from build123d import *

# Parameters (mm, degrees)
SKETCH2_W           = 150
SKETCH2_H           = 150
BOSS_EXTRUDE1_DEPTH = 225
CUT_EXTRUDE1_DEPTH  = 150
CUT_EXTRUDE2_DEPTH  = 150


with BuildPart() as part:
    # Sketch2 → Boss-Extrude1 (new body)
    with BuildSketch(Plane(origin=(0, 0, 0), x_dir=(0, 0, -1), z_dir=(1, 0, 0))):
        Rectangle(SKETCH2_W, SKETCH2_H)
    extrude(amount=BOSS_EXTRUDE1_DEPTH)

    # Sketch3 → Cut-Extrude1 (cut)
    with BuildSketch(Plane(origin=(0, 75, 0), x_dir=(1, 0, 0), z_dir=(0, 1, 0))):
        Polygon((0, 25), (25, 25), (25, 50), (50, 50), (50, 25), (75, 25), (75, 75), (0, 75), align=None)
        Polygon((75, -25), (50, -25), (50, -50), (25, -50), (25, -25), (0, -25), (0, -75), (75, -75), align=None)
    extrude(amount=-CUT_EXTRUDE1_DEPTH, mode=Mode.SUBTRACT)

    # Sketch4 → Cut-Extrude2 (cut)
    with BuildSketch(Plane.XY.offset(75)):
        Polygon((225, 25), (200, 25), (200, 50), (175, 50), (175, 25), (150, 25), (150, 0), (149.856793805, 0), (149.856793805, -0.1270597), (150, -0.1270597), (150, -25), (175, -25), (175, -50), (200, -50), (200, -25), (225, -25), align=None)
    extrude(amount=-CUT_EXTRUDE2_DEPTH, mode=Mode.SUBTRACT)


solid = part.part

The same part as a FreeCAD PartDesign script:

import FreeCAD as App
import Part
import Sketcher
Q = App.Units.Quantity

doc = App.newDocument("Part")
body = doc.addObject("PartDesign::Body", "Body")

# Sketch on YZ plane
sketch1 = body.newObject("Sketcher::SketchObject", "Sketch")
sketch1.AttachmentSupport = (doc.getObject("YZ_Plane"), [""])
sketch1.MapMode = "FlatFace"
sketch1.addGeometry([
    Part.LineSegment(App.Vector(75, 75, 0), App.Vector(-75, 75, 0)),
    Part.LineSegment(App.Vector(-75, 75, 0), App.Vector(-75, -75, 0)),
    Part.LineSegment(App.Vector(-75, -75, 0), App.Vector(75, -75, 0)),
    Part.LineSegment(App.Vector(75, -75, 0), App.Vector(75, 75, 0)),
], False)
sketch1.addConstraint([
    Sketcher.Constraint("Coincident", 0, 2, 1, 1),
    Sketcher.Constraint("Coincident", 1, 2, 2, 1),
    Sketcher.Constraint("Coincident", 2, 2, 3, 1),
    Sketcher.Constraint("Coincident", 3, 2, 0, 1),
    Sketcher.Constraint("Horizontal", 0),
    Sketcher.Constraint("Vertical", 1),
    Sketcher.Constraint("Horizontal", 2),
    Sketcher.Constraint("Vertical", 3),
    Sketcher.Constraint("Symmetric", 0, 2, 2, 2, -1, 1),
    Sketcher.Constraint("Equal", 2, 1),
    Sketcher.Constraint("DistanceX", 0, 2, 0, 1, Q("150 mm")),
])
pad1 = body.newObject("PartDesign::Pad", "Pad")
pad1.Profile = sketch1
pad1.Length = 225

# Sketch on XZ plane
sketch2 = body.newObject("Sketcher::SketchObject", "Sketch001")
sketch2.AttachmentSupport = (doc.getObject("XZ_Plane"), [""])
sketch2.MapMode = "FlatFace"
sketch2.AttachmentOffset = App.Placement(App.Vector(0, 0, -75), App.Rotation())
sketch2.addGeometry([
    Part.LineSegment(App.Vector(0, -25, 0), App.Vector(25, -25, 0)),  # 0
    Part.LineSegment(App.Vector(25, -25, 0), App.Vector(25, -50, 0)),  # 1
    Part.LineSegment(App.Vector(25, -50, 0), App.Vector(50, -50, 0)),  # 2
    Part.LineSegment(App.Vector(50, -50, 0), App.Vector(50, -25, 0)),  # 3
    Part.LineSegment(App.Vector(50, -25, 0), App.Vector(75, -25, 0)),  # 4
    Part.LineSegment(App.Vector(75, -25, 0), App.Vector(75, -75, 0)),  # 5
    Part.LineSegment(App.Vector(75, -75, 0), App.Vector(0, -75, 0)),  # 6
    Part.LineSegment(App.Vector(0, -75, 0), App.Vector(0, -25, 0)),  # 7
    Part.LineSegment(App.Vector(75, 25, 0), App.Vector(50, 25, 0)),  # 8
    Part.LineSegment(App.Vector(50, 25, 0), App.Vector(50, 50, 0)),  # 9
    Part.LineSegment(App.Vector(50, 50, 0), App.Vector(25, 50, 0)),  # 10
    Part.LineSegment(App.Vector(25, 50, 0), App.Vector(25, 25, 0)),  # 11
    Part.LineSegment(App.Vector(25, 25, 0), App.Vector(0, 25, 0)),  # 12
    Part.LineSegment(App.Vector(0, 25, 0), App.Vector(0, 75, 0)),  # 13
    Part.LineSegment(App.Vector(0, 75, 0), App.Vector(75, 75, 0)),  # 14
    Part.LineSegment(App.Vector(75, 75, 0), App.Vector(75, 25, 0)),  # 15
], False)
sketch2.addConstraint([
    Sketcher.Constraint("Coincident", 0, 2, 1, 1),
    Sketcher.Constraint("Coincident", 1, 2, 2, 1),
    Sketcher.Constraint("Coincident", 2, 2, 3, 1),
    Sketcher.Constraint("Coincident", 3, 2, 4, 1),
    Sketcher.Constraint("Coincident", 4, 2, 5, 1),
    Sketcher.Constraint("Coincident", 5, 2, 6, 1),
    Sketcher.Constraint("Coincident", 6, 2, 7, 1),
    Sketcher.Constraint("Coincident", 7, 2, 0, 1),
    Sketcher.Constraint("Coincident", 8, 2, 9, 1),
    Sketcher.Constraint("Coincident", 9, 2, 10, 1),
    Sketcher.Constraint("Coincident", 10, 2, 11, 1),
    Sketcher.Constraint("Coincident", 11, 2, 12, 1),
    Sketcher.Constraint("Coincident", 12, 2, 13, 1),
    Sketcher.Constraint("Coincident", 13, 2, 14, 1),
    Sketcher.Constraint("Coincident", 14, 2, 15, 1),
    Sketcher.Constraint("Coincident", 15, 2, 8, 1),
    Sketcher.Constraint("Horizontal", 0),
    Sketcher.Constraint("Vertical", 1),
    Sketcher.Constraint("Horizontal", 2),
    Sketcher.Constraint("Vertical", 3),
    Sketcher.Constraint("Horizontal", 4),
    Sketcher.Constraint("Vertical", 5),
    Sketcher.Constraint("Horizontal", 6),
    Sketcher.Constraint("Vertical", 7),
    Sketcher.Constraint("Horizontal", 8),
    Sketcher.Constraint("Vertical", 9),
    Sketcher.Constraint("Horizontal", 10),
    Sketcher.Constraint("Vertical", 11),
    Sketcher.Constraint("Horizontal", 12),
    Sketcher.Constraint("Vertical", 13),
    Sketcher.Constraint("Horizontal", 14),
    Sketcher.Constraint("Vertical", 15),
    Sketcher.Constraint("Symmetric", 7, 2, 12, 2, -1, 1),
    Sketcher.Constraint("Symmetric", 3, 2, 8, 2, -1),
    Sketcher.Constraint("Symmetric", 1, 2, 10, 2, -1),
    Sketcher.Constraint("Symmetric", 6, 2, 13, 2, -1),
    Sketcher.Constraint("Horizontal", 0, 2, 3, 2),
    Sketcher.Constraint("Vertical", 5, 2, 14, 2),
    Sketcher.Constraint("Equal", 0, 2),
    Sketcher.Constraint("Equal", 2, 4),
    Sketcher.Constraint("Equal", 12, 1),
    Sketcher.Constraint("DistanceX", 0, 1, 0, 2, Q("25 mm")),
    Sketcher.Constraint("DistanceY", 5, 2, 5, 1, Q("50 mm")),
    Sketcher.Constraint("DistanceY", 0, 2, -1, 1, Q("25 mm")),
])
pocket1 = body.newObject("PartDesign::Pocket", "Pocket")
pocket1.Profile = sketch2
pocket1.Length = 150
pocket1.Reversed = True

# Sketch on XY plane
sketch3 = body.newObject("Sketcher::SketchObject", "Sketch002")
sketch3.AttachmentSupport = (doc.getObject("XY_Plane"), [""])
sketch3.MapMode = "FlatFace"
sketch3.AttachmentOffset = App.Placement(App.Vector(0, 0, 75), App.Rotation())
sketch3.addGeometry([
    Part.LineSegment(App.Vector(225, 25, 0), App.Vector(200, 25, 0)),  # 0
    Part.LineSegment(App.Vector(200, 25, 0), App.Vector(200, 50, 0)),  # 1
    Part.LineSegment(App.Vector(200, 50, 0), App.Vector(175, 50, 0)),  # 2
    Part.LineSegment(App.Vector(175, 50, 0), App.Vector(175, 25, 0)),  # 3
    Part.LineSegment(App.Vector(175, 25, 0), App.Vector(150, 25, 0)),  # 4
    Part.LineSegment(App.Vector(150, 25, 0), App.Vector(150, 0, 0)),  # 5
    Part.LineSegment(App.Vector(150, 0, 0), App.Vector(149.856794, 0, 0)),  # 6
    Part.LineSegment(App.Vector(149.856794, 0, 0), App.Vector(149.856794, -0.12706, 0)),  # 7
    Part.LineSegment(App.Vector(149.856794, -0.12706, 0), App.Vector(150, -0.12706, 0)),  # 8
    Part.LineSegment(App.Vector(150, -0.12706, 0), App.Vector(150, -25, 0)),  # 9
    Part.LineSegment(App.Vector(150, -25, 0), App.Vector(175, -25, 0)),  # 10
    Part.LineSegment(App.Vector(175, -25, 0), App.Vector(175, -50, 0)),  # 11
    Part.LineSegment(App.Vector(175, -50, 0), App.Vector(200, -50, 0)),  # 12
    Part.LineSegment(App.Vector(200, -50, 0), App.Vector(200, -25, 0)),  # 13
    Part.LineSegment(App.Vector(200, -25, 0), App.Vector(225, -25, 0)),  # 14
    Part.LineSegment(App.Vector(225, -25, 0), App.Vector(225, 25, 0)),  # 15
], False)
sketch3.addConstraint([
    Sketcher.Constraint("Coincident", 0, 2, 1, 1),
    Sketcher.Constraint("Coincident", 1, 2, 2, 1),
    Sketcher.Constraint("Coincident", 2, 2, 3, 1),
    Sketcher.Constraint("Coincident", 3, 2, 4, 1),
    Sketcher.Constraint("Coincident", 4, 2, 5, 1),
    Sketcher.Constraint("Coincident", 5, 2, 6, 1),
    Sketcher.Constraint("Coincident", 6, 2, 7, 1),
    Sketcher.Constraint("Coincident", 7, 2, 8, 1),
    Sketcher.Constraint("Coincident", 8, 2, 9, 1),
    Sketcher.Constraint("Coincident", 9, 2, 10, 1),
    Sketcher.Constraint("Coincident", 10, 2, 11, 1),
    Sketcher.Constraint("Coincident", 11, 2, 12, 1),
    Sketcher.Constraint("Coincident", 12, 2, 13, 1),
    Sketcher.Constraint("Coincident", 13, 2, 14, 1),
    Sketcher.Constraint("Coincident", 14, 2, 15, 1),
    Sketcher.Constraint("Coincident", 15, 2, 0, 1),
    Sketcher.Constraint("Horizontal", 0),
    Sketcher.Constraint("Vertical", 1),
    Sketcher.Constraint("Horizontal", 2),
    Sketcher.Constraint("Vertical", 3),
    Sketcher.Constraint("Horizontal", 4),
    Sketcher.Constraint("Vertical", 5),
    Sketcher.Constraint("Horizontal", 6),
    Sketcher.Constraint("Vertical", 7),
    Sketcher.Constraint("Horizontal", 8),
    Sketcher.Constraint("Vertical", 9),
    Sketcher.Constraint("Horizontal", 10),
    Sketcher.Constraint("Vertical", 11),
    Sketcher.Constraint("Horizontal", 12),
    Sketcher.Constraint("Vertical", 13),
    Sketcher.Constraint("Horizontal", 14),
    Sketcher.Constraint("Vertical", 15),
    Sketcher.Constraint("Symmetric", 4, 2, 9, 2, -1),
    Sketcher.Constraint("Symmetric", 2, 2, 11, 2, -1),
    Sketcher.Constraint("Symmetric", 0, 2, 13, 2, -1),
    Sketcher.Constraint("PointOnObject", 5, 2, -1),
    Sketcher.Constraint("Horizontal", 0, 2, 3, 2),
    Sketcher.Constraint("Equal", 0, 2),
    Sketcher.Constraint("Equal", 2, 4),
    Sketcher.Constraint("Equal", 14, 1),
    Sketcher.Constraint("Equal", 3, 5),
    Sketcher.Constraint("DistanceX", 0, 2, 0, 1, Q("25 mm")),
    Sketcher.Constraint("DistanceX", -1, 1, 0, 2, Q("200 mm")),
    Sketcher.Constraint("DistanceY", 7, 2, 7, 1, Q("0.12706 mm")),
    Sketcher.Constraint("DistanceX", 6, 2, 6, 1, Q("0.143206 mm")),
])
pocket2 = body.newObject("PartDesign::Pocket", "Pocket001")
pocket2.Profile = sketch3
pocket2.Length = 150

doc.recompute()
